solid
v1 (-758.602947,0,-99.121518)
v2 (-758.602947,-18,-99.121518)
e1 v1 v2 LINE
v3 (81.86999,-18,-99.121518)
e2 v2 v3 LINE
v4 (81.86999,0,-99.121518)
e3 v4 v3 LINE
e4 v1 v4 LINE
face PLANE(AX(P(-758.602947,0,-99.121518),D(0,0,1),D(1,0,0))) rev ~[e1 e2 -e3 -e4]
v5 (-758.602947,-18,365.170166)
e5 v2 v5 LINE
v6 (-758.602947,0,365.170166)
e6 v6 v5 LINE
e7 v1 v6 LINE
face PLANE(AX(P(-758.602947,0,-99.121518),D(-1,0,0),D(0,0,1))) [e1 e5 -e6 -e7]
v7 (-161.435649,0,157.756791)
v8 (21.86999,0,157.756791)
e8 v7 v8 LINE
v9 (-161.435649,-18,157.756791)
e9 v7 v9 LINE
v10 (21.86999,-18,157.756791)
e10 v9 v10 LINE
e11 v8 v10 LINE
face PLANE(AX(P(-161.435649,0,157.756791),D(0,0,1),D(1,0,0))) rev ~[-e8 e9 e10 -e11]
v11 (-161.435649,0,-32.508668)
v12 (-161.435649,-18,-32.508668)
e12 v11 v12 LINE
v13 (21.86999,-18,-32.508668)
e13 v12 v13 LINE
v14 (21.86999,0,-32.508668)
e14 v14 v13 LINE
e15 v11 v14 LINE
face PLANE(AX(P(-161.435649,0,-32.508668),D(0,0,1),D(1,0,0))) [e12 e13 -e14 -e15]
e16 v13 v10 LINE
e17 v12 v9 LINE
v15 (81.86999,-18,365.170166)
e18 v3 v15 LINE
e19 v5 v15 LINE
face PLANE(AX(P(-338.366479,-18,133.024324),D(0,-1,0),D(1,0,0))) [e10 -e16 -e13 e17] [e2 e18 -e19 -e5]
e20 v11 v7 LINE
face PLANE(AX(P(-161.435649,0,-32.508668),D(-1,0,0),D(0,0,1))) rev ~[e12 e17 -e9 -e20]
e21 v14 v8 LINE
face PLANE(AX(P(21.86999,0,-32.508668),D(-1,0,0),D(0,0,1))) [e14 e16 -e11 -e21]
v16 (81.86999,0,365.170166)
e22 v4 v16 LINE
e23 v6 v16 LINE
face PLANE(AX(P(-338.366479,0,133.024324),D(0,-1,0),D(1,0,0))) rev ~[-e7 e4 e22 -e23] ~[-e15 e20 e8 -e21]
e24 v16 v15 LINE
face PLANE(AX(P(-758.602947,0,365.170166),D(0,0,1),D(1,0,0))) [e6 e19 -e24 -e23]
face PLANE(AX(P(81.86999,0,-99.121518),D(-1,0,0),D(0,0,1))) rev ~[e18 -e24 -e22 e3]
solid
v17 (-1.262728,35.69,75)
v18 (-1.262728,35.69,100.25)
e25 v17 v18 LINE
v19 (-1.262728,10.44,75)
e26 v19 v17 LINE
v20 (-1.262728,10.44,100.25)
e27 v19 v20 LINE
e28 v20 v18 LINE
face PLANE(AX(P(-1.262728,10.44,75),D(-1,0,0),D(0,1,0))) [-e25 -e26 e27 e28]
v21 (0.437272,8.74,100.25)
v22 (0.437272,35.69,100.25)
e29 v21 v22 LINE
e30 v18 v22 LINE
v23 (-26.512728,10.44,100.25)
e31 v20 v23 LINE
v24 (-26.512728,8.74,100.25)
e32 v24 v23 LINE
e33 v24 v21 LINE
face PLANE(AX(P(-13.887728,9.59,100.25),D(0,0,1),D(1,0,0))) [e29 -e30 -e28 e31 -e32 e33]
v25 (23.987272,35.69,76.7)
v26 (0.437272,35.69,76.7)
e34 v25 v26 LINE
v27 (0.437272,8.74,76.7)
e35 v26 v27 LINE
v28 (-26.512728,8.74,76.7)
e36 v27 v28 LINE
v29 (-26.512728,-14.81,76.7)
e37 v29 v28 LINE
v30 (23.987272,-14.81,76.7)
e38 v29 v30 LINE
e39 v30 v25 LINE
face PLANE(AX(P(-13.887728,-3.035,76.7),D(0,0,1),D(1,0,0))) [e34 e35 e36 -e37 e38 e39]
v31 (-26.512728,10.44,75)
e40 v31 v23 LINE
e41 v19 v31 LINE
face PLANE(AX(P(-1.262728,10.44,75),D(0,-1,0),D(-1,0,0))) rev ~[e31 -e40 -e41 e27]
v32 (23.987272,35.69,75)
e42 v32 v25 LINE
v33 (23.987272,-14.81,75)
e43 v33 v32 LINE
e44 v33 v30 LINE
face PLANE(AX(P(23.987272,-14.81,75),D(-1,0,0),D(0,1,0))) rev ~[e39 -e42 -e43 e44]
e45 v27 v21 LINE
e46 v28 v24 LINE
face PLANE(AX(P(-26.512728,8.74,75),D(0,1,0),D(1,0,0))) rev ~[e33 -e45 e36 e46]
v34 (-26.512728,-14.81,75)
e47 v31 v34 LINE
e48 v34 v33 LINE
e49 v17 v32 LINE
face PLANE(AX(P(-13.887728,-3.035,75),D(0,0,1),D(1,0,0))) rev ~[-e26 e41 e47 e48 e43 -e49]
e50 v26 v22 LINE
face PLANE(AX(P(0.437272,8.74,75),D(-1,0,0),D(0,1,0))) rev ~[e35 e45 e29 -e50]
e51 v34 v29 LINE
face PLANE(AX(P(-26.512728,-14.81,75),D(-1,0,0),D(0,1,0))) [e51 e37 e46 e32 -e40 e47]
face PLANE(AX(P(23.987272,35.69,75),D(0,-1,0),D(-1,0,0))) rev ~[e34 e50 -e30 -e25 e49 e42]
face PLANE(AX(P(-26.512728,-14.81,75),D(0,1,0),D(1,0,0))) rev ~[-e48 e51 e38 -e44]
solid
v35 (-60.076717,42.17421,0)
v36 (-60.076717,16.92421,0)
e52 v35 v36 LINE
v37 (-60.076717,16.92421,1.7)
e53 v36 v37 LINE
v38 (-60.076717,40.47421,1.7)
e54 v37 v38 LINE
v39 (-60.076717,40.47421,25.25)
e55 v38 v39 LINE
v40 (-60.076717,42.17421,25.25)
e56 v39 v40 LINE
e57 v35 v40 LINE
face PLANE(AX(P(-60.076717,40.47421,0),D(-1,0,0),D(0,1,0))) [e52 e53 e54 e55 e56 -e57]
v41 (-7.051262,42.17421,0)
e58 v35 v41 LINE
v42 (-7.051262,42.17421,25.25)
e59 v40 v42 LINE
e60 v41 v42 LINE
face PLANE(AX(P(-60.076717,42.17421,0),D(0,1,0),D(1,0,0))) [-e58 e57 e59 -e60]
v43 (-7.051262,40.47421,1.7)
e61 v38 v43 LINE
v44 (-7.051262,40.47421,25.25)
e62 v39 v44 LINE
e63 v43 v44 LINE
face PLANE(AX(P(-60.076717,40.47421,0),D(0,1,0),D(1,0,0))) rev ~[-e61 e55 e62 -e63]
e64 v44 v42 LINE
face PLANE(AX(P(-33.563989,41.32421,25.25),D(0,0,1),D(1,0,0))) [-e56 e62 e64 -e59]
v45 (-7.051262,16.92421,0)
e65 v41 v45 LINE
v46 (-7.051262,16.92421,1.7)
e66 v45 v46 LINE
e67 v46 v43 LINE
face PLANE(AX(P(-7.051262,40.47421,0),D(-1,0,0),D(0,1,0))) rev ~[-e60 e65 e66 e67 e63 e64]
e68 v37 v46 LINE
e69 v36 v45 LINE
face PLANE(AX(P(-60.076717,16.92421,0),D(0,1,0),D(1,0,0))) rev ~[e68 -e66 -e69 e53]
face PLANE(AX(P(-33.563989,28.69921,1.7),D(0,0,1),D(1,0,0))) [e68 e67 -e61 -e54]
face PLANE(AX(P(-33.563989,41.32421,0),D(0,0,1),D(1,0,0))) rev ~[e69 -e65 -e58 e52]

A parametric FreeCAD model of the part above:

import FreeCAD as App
import Part
import Sketcher

V = App.Vector
Q = App.Units.Quantity

doc = App.newDocument("Part")
params = doc.addObject("Spreadsheet::Sheet", "Params")
for row, (alias, value) in enumerate([
    ("sketch1_height", "23.55 mm"),
    ("pad1_length", "1.7 mm"),
    ("sketch2_height", "1.7 mm"),
    ("pad2_length", "25.25 mm"),
    ("pad3_length", "18 mm"),
    ("sketch4_width", "1.7 mm"),
    ("sketch4_width2", "26.95 mm"),
    ("pad4_length", "25.25 mm"),
    ("sketch5_width", "50.5 mm"),
    ("sketch5_width2", "23.55 mm"),
    ("pad5_length", "1.7 mm"),
], start=1):
    params.set(f"A{row}", alias)
    params.set(f"B{row}", "=" + value)
    params.setAlias(f"B{row}", alias)

body = doc.addObject("PartDesign::Body", "Body")

# Sketch on XY plane
sketch1 = body.newObject("Sketcher::SketchObject", "Sketch")
sketch1.AttachmentSupport = (doc.getObject("XY_Plane"), [""])
sketch1.MapMode = "FlatFace"
sketch1.addGeometry([
    Part.LineSegment(V(-60.076717, 40.47421, 0), V(-60.076717, 16.92421, 0)),
    Part.LineSegment(V(-60.076717, 16.92421, 0), V(-7.051262, 16.92421, 0)),
    Part.LineSegment(V(-7.051262, 16.92421, 0), V(-7.051262, 40.47421, 0)),
    Part.LineSegment(V(-7.051262, 40.47421, 0), V(-60.076717, 40.47421, 0)),
], False)
sketch1.addConstraint([
    Sketcher.Constraint("Coincident", 0, 2, 1, 1),
    Sketcher.Constraint("Coincident", 1, 2, 2, 1),
    Sketcher.Constraint("Coincident", 2, 2, 3, 1),
    Sketcher.Constraint("Coincident", 3, 2, 0, 1),
    Sketcher.Constraint("Vertical", 0),
    Sketcher.Constraint("Horizontal", 1),
    Sketcher.Constraint("Vertical", 2),
    Sketcher.Constraint("Horizontal", 3),
    Sketcher.Constraint("DistanceY", 0, 2, 0, 1, Q("23.55 mm")),
    Sketcher.Constraint("DistanceX", 1, 1, 1, 2, Q("53.025456 mm")),
    Sketcher.Constraint("DistanceY", -1, 1, 0, 2, Q("16.92421 mm")),
    Sketcher.Constraint("DistanceX", 1, 2, -1, 1, Q("7.051262 mm")),
])
sketch1.setExpression("Constraints[8]", "Params.sketch1_height")
pad1 = body.newObject("PartDesign::Pad", "Pad")
pad1.Profile = sketch1
pad1.setExpression("Length", "Params.pad1_length")

# Sketch on XY plane
sketch2 = body.newObject("Sketcher::SketchObject", "Sketch001")
sketch2.AttachmentSupport = (doc.getObject("XY_Plane"), [""])
sketch2.MapMode = "FlatFace"
sketch2.addGeometry([
    Part.LineSegment(V(-60.076717, 42.17421, 0), V(-60.076717, 40.47421, 0)),
    Part.LineSegment(V(-60.076717, 40.47421, 0), V(-7.051262, 40.47421, 0)),
    Part.LineSegment(V(-7.051262, 40.47421, 0), V(-7.051262, 42.17421, 0)),
    Part.LineSegment(V(-7.051262, 42.17421, 0), V(-60.076717, 42.17421, 0)),
], False)
sketch2.addConstraint([
    Sketcher.Constraint("Coincident", 0, 2, 1, 1),
    Sketcher.Constraint("Coincident", 1, 2, 2, 1),
    Sketcher.Constraint("Coincident", 2, 2, 3, 1),
    Sketcher.Constraint("Coincident", 3, 2, 0, 1),
    Sketcher.Constraint("Vertical", 0),
    Sketcher.Constraint("Horizontal", 1),
    Sketcher.Constraint("Vertical", 2),
    Sketcher.Constraint("Horizontal", 3),
    Sketcher.Constraint("DistanceY", 0, 2, 0, 1, Q("1.7 mm")),
    Sketcher.Constraint("DistanceX", 1, 1, 1, 2, Q("53.025456 mm")),
    Sketcher.Constraint("DistanceY", -1, 1, 0, 2, Q("40.47421 mm")),
    Sketcher.Constraint("DistanceX", 1, 2, -1, 1, Q("7.051262 mm")),
])
sketch2.setExpression("Constraints[8]", "Params.sketch2_height")
pad2 = body.newObject("PartDesign::Pad", "Pad001")
pad2.Profile = sketch2
pad2.setExpression("Length", "Params.pad2_length")
body2 = doc.addObject("PartDesign::Body", "Body001")

# Sketch on XZ plane
sketch3 = body2.newObject("Sketcher::SketchObject", "Sketch002")
sketch3.AttachmentSupport = (doc.getObject("XZ_Plane001"), [""])
sketch3.MapMode = "FlatFace"
sketch3.addGeometry([
    Part.LineSegment(V(-758.602947, 365.170166, 0), V(-758.602947, -99.121518, 0)),  # 0
    Part.LineSegment(V(-758.602947, -99.121518, 0), V(81.86999, -99.121518, 0)),  # 1
    Part.LineSegment(V(81.86999, -99.121518, 0), V(81.86999, 365.170166, 0)),  # 2
    Part.LineSegment(V(81.86999, 365.170166, 0), V(-758.602947, 365.170166, 0)),  # 3
    Part.LineSegment(V(21.86999, -32.508668, 0), V(-161.435649, -32.508668, 0)),  # 4
    Part.LineSegment(V(-161.435649, -32.508668, 0), V(-161.435649, 157.756791, 0)),  # 5
    Part.LineSegment(V(-161.435649, 157.756791, 0), V(21.86999, 157.756791, 0)),  # 6
    Part.LineSegment(V(21.86999, 157.756791, 0), V(21.86999, -32.508668, 0)),  # 7
], False)
sketch3.addConstraint([
    Sketcher.Constraint("Coincident", 0, 2, 1, 1),
    Sketcher.Constraint("Coincident", 1, 2, 2, 1),
    Sketcher.Constraint("Coincident", 2, 2, 3, 1),
    Sketcher.Constraint("Coincident", 3, 2, 0, 1),
    Sketcher.Constraint("Coincident", 4, 2, 5, 1),
    Sketcher.Constraint("Coincident", 5, 2, 6, 1),
    Sketcher.Constraint("Coincident", 6, 2, 7, 1),
    Sketcher.Constraint("Coincident", 7, 2, 4, 1),
    Sketcher.Constraint("Vertical", 0),
    Sketcher.Constraint("Horizontal", 1),
    Sketcher.Constraint("Vertical", 2),
    Sketcher.Constraint("Horizontal", 3),
    Sketcher.Constraint("Horizontal", 4),
    Sketcher.Constraint("Vertical", 5),
    Sketcher.Constraint("Horizontal", 6),
    Sketcher.Constraint("Vertical", 7),
    Sketcher.Constraint("DistanceX", 6, 2, 2, 2, Q("60 mm")),
    Sketcher.Constraint("DistanceX", 4, 2, 4, 1, Q("183.305638 mm")),
    Sketcher.Constraint("DistanceY", 5, 1, 5, 2, Q("190.265458 mm")),
    Sketcher.Constraint("DistanceX", 0, 2, 4, 2, Q("597.167298 mm")),
    Sketcher.Constraint("DistanceY", 0, 2, 0, 1, Q("464.291684 mm")),
    Sketcher.Constraint("DistanceY", 0, 2, -1, 1, Q("99.121518 mm")),
    Sketcher.Constraint("DistanceX", -1, 1, 1, 2, Q("81.86999 mm")),
    Sketcher.Constraint("DistanceY", -1, 1, 5, 2, Q("157.756791 mm")),
])
pad3 = body2.newObject("PartDesign::Pad", "Pad002")
pad3.Profile = sketch3
pad3.setExpression("Length", "Params.pad3_length")
body3 = doc.addObject("PartDesign::Body", "Body002")

# Sketch on XY plane
sketch4 = body3.newObject("Sketcher::SketchObject", "Sketch003")
sketch4.AttachmentSupport = (doc.getObject("XY_Plane002"), [""])
sketch4.MapMode = "FlatFace"
sketch4.AttachmentOffset = App.Placement(V(0, 0, 75), App.Rotation())
sketch4.addGeometry([
    Part.LineSegment(V(-26.512728, 10.44, 0), V(-26.512728, 8.74, 0)),  # 0
    Part.LineSegment(V(-26.512728, 8.74, 0), V(0.437272, 8.74, 0)),  # 1
    Part.LineSegment(V(0.437272, 8.74, 0), V(0.437272, 35.69, 0)),  # 2
    Part.LineSegment(V(0.437272, 35.69, 0), V(-1.262728, 35.69, 0)),  # 3
    Part.LineSegment(V(-1.262728, 35.69, 0), V(-1.262728, 10.44, 0)),  # 4
    Part.LineSegment(V(-1.262728, 10.44, 0), V(-26.512728, 10.44, 0)),  # 5
], False)
sketch4.addConstraint([
    Sketcher.Constraint("Coincident", 0, 2, 1, 1),
    Sketcher.Constraint("Coincident", 1, 2, 2, 1),
    Sketcher.Constraint("Coincident", 2, 2, 3, 1),
    Sketcher.Constraint("Coincident", 3, 2, 4, 1),
    Sketcher.Constraint("Coincident", 4, 2, 5, 1),
    Sketcher.Constraint("Coincident", 5, 2, 0, 1),
    Sketcher.Constraint("Vertical", 0),
    Sketcher.Constraint("Horizontal", 1),
    Sketcher.Constraint("Vertical", 2),
    Sketcher.Constraint("Horizontal", 3),
    Sketcher.Constraint("Vertical", 4),
    Sketcher.Constraint("Horizontal", 5),
    Sketcher.Constraint("Equal", 3, 0),
    Sketcher.Constraint("Equal", 1, 2),
    Sketcher.Constraint("DistanceX", 3, 2, 3, 1, Q("1.7 mm")),
    Sketcher.Constraint("DistanceX", 1, 1, 1, 2, Q("26.95 mm")),
    Sketcher.Constraint("DistanceY", -1, 1, 0, 2, Q("8.74 mm")),
    Sketcher.Constraint("DistanceX", 0, 2, -1, 1, Q("26.512728 mm")),
])
sketch4.setExpression("Constraints[14]", "Params.sketch4_width")
sketch4.setExpression("Constraints[15]", "Params.sketch4_width2")
pad4 = body3.newObject("PartDesign::Pad", "Pad003")
pad4.Profile = sketch4
pad4.setExpression("Length", "Params.pad4_length")

# Sketch on XY plane
sketch5 = body3.newObject("Sketcher::SketchObject", "Sketch004")
sketch5.AttachmentSupport = (doc.getObject("XY_Plane002"), [""])
sketch5.MapMode = "FlatFace"
sketch5.AttachmentOffset = App.Placement(V(0, 0, 75), App.Rotation())
sketch5.addGeometry([
    Part.LineSegment(V(-26.512728, 8.74, 0), V(-26.512728, -14.81, 0)),  # 0
    Part.LineSegment(V(-26.512728, -14.81, 0), V(23.987272, -14.81, 0)),  # 1
    Part.LineSegment(V(23.987272, -14.81, 0), V(23.987272, 35.69, 0)),  # 2
    Part.LineSegment(V(23.987272, 35.69, 0), V(0.437272, 35.69, 0)),  # 3
    Part.LineSegment(V(0.437272, 35.69, 0), V(0.437272, 8.74, 0)),  # 4
    Part.LineSegment(V(0.437272, 8.74, 0), V(-26.512728, 8.74, 0)),  # 5
], False)
sketch5.addConstraint([
    Sketcher.Constraint("Coincident", 0, 2, 1, 1),
    Sketcher.Constraint("Coincident", 1, 2, 2, 1),
    Sketcher.Constraint("Coincident", 2, 2, 3, 1),
    Sketcher.Constraint("Coincident", 3, 2, 4, 1),
    Sketcher.Constraint("Coincident", 4, 2, 5, 1),
    Sketcher.Constraint("Coincident", 5, 2, 0, 1),
    Sketcher.Constraint("Vertical", 0),
    Sketcher.Constraint("Horizontal", 1),
    Sketcher.Constraint("Vertical", 2),
    Sketcher.Constraint("Horizontal", 3),
    Sketcher.Constraint("Vertical", 4),
    Sketcher.Constraint("Horizontal", 5),
    Sketcher.Constraint("Equal", 3, 0),
    Sketcher.Constraint("Equal", 1, 2),
    Sketcher.Constraint("DistanceX", 1, 1, 1, 2, Q("50.5 mm")),
    Sketcher.Constraint("DistanceX", 3, 2, 3, 1, Q("23.55 mm")),
    Sketcher.Constraint("DistanceY", 0, 2, -1, 1, Q("14.81 mm")),
    Sketcher.Constraint("DistanceX", 0, 2, -1, 1, Q("26.512728 mm")),
])
sketch5.setExpression("Constraints[14]", "Params.sketch5_width")
sketch5.setExpression("Constraints[15]", "Params.sketch5_width2")
pad5 = body3.newObject("PartDesign::Pad", "Pad004")
pad5.Profile = sketch5
pad5.setExpression("Length", "Params.pad5_length")

doc.recompute()
